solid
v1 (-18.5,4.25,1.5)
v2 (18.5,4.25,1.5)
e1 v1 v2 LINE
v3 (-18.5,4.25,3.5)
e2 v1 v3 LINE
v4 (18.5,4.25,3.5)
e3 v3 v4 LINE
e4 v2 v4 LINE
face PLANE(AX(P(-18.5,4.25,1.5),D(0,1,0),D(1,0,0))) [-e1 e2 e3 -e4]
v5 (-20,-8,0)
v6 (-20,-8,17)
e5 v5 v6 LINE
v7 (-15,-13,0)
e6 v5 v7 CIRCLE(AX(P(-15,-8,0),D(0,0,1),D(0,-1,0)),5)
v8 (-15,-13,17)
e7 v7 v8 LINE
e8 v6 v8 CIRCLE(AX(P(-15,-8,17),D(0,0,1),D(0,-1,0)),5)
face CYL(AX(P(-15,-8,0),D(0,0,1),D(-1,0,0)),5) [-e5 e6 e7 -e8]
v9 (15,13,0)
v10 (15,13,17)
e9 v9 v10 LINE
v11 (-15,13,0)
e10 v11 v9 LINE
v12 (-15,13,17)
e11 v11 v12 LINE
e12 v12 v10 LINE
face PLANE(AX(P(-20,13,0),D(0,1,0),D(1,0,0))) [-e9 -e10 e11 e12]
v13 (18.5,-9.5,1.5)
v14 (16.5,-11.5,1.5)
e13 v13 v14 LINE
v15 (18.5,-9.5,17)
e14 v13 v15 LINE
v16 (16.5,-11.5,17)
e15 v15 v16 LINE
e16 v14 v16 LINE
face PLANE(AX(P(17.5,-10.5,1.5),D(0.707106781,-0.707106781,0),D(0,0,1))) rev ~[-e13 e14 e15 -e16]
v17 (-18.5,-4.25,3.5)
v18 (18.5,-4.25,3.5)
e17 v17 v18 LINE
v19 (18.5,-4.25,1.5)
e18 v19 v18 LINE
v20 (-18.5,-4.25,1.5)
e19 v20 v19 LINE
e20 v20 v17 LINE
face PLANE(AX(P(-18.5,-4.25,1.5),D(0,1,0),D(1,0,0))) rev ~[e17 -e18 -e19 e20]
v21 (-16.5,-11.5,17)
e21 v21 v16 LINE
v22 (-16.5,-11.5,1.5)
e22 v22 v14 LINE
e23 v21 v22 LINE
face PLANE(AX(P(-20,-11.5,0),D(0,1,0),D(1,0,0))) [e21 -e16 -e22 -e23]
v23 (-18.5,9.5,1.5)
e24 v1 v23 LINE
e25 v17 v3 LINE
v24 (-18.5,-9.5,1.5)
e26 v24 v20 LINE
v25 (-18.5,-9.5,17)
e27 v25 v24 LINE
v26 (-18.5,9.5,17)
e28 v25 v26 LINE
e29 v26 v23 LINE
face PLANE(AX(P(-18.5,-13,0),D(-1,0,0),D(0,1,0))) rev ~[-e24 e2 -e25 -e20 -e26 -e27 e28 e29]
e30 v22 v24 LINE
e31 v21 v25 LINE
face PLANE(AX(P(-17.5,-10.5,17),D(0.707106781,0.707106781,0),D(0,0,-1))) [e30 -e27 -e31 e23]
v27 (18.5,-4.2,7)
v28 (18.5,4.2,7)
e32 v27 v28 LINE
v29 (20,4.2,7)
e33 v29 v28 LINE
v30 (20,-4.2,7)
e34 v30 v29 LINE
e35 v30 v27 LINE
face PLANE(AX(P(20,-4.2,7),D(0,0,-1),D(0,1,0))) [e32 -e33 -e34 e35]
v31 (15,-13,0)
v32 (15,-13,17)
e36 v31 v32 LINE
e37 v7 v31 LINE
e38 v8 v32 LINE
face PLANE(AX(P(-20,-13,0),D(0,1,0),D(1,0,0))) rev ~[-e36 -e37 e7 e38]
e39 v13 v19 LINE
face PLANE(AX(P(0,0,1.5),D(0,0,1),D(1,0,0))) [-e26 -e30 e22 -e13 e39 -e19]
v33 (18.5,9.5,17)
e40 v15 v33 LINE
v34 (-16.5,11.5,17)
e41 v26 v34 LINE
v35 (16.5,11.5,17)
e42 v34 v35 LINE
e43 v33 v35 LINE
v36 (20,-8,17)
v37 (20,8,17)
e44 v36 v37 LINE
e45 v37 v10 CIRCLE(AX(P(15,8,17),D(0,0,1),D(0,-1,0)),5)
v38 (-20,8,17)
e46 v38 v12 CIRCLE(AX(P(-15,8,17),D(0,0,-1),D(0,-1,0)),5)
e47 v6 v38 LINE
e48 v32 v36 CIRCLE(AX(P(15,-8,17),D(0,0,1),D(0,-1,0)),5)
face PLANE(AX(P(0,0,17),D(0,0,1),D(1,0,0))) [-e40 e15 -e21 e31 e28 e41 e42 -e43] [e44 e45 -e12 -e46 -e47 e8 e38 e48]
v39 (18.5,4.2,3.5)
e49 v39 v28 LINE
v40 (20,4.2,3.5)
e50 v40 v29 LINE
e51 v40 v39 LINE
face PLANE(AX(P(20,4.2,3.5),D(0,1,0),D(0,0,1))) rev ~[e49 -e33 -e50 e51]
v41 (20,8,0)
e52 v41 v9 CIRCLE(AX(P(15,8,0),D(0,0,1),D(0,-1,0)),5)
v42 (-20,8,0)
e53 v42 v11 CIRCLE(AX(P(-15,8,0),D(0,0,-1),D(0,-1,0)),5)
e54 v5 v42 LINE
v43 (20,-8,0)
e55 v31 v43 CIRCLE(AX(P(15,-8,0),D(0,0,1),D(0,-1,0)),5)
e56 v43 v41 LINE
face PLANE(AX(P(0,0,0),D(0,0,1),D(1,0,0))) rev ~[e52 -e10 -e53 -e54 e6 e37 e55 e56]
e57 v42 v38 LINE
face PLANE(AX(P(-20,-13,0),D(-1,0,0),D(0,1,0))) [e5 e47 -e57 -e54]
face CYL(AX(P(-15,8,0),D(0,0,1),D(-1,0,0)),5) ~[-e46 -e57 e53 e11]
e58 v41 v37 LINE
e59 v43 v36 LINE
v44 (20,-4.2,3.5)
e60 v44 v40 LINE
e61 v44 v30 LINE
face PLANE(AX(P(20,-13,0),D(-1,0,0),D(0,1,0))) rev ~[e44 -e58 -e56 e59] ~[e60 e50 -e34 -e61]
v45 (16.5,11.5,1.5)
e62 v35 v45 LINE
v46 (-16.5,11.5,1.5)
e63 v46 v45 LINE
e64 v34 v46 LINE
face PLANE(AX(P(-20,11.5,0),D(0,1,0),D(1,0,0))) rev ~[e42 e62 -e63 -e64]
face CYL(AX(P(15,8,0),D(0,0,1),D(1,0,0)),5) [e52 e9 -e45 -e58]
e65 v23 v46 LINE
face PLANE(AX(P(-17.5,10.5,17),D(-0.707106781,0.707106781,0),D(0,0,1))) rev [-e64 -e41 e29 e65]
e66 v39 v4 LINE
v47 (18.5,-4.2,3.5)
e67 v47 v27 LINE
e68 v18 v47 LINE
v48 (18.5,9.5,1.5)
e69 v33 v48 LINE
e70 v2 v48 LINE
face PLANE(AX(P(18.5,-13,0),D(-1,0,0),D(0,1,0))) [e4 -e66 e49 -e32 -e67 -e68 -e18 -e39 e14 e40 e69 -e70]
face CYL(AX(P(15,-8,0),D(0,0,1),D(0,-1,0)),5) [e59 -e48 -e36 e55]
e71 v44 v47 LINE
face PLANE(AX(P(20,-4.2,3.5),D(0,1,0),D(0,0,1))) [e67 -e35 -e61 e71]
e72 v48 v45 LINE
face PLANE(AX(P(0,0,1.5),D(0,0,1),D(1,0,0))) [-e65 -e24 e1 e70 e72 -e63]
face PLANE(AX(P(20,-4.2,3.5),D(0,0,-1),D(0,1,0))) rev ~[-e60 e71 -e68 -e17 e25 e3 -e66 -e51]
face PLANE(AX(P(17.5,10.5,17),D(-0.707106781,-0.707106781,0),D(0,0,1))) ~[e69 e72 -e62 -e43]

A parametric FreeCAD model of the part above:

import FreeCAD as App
import Part
import Sketcher
from FreeCAD import Vector
Q = App.Units.Quantity


def edges_at(feature, points):
    """Names of the edges that pass closest to the given points."""
    edges = feature.Shape.Edges
    near = lambda p: min(range(len(edges)), key=lambda i: edges[i].distToShape(Part.Vertex(*p))[0])
    return sorted({f"Edge{near(p) + 1}" for p in points})


def faces_at(feature, points):
    """Names of the faces that lie closest to the given points."""
    faces = feature.Shape.Faces
    near = lambda p: min(range(len(faces)), key=lambda i: faces[i].distToShape(Part.Vertex(*p))[0])
    return sorted({f"Face{near(p) + 1}" for p in points})


def add_polygon(sketch, points):
    """Adds a closed chain of lines whose ends are joined by coincident constraints."""
    first, n = sketch.GeometryCount, len(points)
    for a, b in zip(points, points[1:] + points[:1]):
        sketch.addGeometry(Part.LineSegment(App.Vector(*a, 0), App.Vector(*b, 0)), False)
    for i in range(n):
        sketch.addConstraint(Sketcher.Constraint("Coincident", first + i, 2, first + (i + 1) % n, 1))

doc = App.newDocument("Part")
body = doc.addObject("PartDesign::Body", "Body")

sketch1 = body.newObject("Sketcher::SketchObject", "Sketch")
sketch1.AttachmentSupport = (doc.getObject("XY_Plane"), [""])
sketch1.MapMode = "FlatFace"
add_polygon(sketch1, [(-20, 13), (-20, -13), (20, -13), (20, 13)])
sketch1.addConstraint([
    Sketcher.Constraint("Vertical", 0),
    Sketcher.Constraint("Horizontal", 1),
    Sketcher.Constraint("Vertical", 2),
    Sketcher.Constraint("Horizontal", 3),
    Sketcher.Constraint("Symmetric", 0, 2, 2, 2, -1, 1),
    Sketcher.Constraint("DistanceX", 1, 1, 1, 2, Q("40 mm")),
    Sketcher.Constraint("DistanceY", 0, 2, 0, 1, Q("26 mm")),
])
pad1 = body.newObject("PartDesign::Pad", "Pad")
pad1.Profile = sketch1
pad1.Length = 17
doc.recompute()

thickness = body.newObject("PartDesign::Thickness", "Thickness")
thickness.Base = (pad1, faces_at(pad1, [(0, 0, 17)]))
thickness.Value = 1.5
thickness.Reversed = True
thickness.Join = "Arc"

sketch2 = body.newObject("Sketcher::SketchObject", "Sketch001")
sketch2.AttachmentSupport = (doc.getObject("XY_Plane"), [""])
sketch2.MapMode = "FlatFace"
sketch2.AttachmentOffset = App.Placement(Vector(0, 0, 1.5), App.Rotation())
add_polygon(sketch2, [(-18, 4), (-18, -4), (18, -4), (18, 4)])
sketch2.addConstraint([
    Sketcher.Constraint("Vertical", 0),
    Sketcher.Constraint("Horizontal", 1),
    Sketcher.Constraint("Vertical", 2),
    Sketcher.Constraint("Horizontal", 3),
    Sketcher.Constraint("Symmetric", 0, 2, 2, 2, -1, 1),
    Sketcher.Constraint("DistanceX", 1, 1, 1, 2, Q("37 mm")),
    Sketcher.Constraint("DistanceY", 0, 2, 0, 1, Q("8.5 mm")),
])
pad2 = body.newObject("PartDesign::Pad", "Pad001")
pad2.Profile = sketch2
pad2.Length = 2

sketch3 = body.newObject("Sketcher::SketchObject", "Sketch002")
sketch3.AttachmentSupport = (doc.getObject("YZ_Plane"), [""])
sketch3.MapMode = "FlatFace"
sketch3.AttachmentOffset = App.Placement(Vector(0, 0, 20), App.Rotation())
add_polygon(sketch3, [(-4.2, 7), (-4.2, 3.5), (4.2, 3.5), (4.2, 7)])
sketch3.addConstraint([
    Sketcher.Constraint("Vertical", 0),
    Sketcher.Constraint("Horizontal", 1),
    Sketcher.Constraint("Vertical", 2),
    Sketcher.Constraint("Horizontal", 3),
    Sketcher.Constraint("DistanceX", 1, 1, 1, 2, Q("8.4 mm")),
    Sketcher.Constraint("DistanceY", 0, 2, 0, 1, Q("3.5 mm")),
    Sketcher.Constraint("DistanceY", -1, 1, 2, 2, Q("7 mm")),
    Sketcher.Constraint("DistanceX", 0, 2, -1, 1, Q("4.2 mm")),
])
pocket1 = body.newObject("PartDesign::Pocket", "Pocket")
pocket1.Profile = sketch3
pocket1.Length = 1.5
doc.recompute()

chamfer = body.newObject("PartDesign::Chamfer", "Chamfer")
chamfer.Base = (pocket1, edges_at(pocket1, [
    (-18.5, 11.5, 9.25),
    (18.5, 11.5, 9.25),
    (18.5, -11.5, 9.25),
    (-18.5, -11.5, 9.25),
]))
chamfer.Size = 2
doc.recompute()

fillet = body.newObject("PartDesign::Fillet", "Fillet")
fillet.Base = (chamfer, edges_at(chamfer, [
    (-20, 13, 8.5),
    (20, 13, 8.5),
    (20, -13, 8.5),
    (-20, -13, 8.5),
]))
fillet.Radius = 5

doc.recompute()
